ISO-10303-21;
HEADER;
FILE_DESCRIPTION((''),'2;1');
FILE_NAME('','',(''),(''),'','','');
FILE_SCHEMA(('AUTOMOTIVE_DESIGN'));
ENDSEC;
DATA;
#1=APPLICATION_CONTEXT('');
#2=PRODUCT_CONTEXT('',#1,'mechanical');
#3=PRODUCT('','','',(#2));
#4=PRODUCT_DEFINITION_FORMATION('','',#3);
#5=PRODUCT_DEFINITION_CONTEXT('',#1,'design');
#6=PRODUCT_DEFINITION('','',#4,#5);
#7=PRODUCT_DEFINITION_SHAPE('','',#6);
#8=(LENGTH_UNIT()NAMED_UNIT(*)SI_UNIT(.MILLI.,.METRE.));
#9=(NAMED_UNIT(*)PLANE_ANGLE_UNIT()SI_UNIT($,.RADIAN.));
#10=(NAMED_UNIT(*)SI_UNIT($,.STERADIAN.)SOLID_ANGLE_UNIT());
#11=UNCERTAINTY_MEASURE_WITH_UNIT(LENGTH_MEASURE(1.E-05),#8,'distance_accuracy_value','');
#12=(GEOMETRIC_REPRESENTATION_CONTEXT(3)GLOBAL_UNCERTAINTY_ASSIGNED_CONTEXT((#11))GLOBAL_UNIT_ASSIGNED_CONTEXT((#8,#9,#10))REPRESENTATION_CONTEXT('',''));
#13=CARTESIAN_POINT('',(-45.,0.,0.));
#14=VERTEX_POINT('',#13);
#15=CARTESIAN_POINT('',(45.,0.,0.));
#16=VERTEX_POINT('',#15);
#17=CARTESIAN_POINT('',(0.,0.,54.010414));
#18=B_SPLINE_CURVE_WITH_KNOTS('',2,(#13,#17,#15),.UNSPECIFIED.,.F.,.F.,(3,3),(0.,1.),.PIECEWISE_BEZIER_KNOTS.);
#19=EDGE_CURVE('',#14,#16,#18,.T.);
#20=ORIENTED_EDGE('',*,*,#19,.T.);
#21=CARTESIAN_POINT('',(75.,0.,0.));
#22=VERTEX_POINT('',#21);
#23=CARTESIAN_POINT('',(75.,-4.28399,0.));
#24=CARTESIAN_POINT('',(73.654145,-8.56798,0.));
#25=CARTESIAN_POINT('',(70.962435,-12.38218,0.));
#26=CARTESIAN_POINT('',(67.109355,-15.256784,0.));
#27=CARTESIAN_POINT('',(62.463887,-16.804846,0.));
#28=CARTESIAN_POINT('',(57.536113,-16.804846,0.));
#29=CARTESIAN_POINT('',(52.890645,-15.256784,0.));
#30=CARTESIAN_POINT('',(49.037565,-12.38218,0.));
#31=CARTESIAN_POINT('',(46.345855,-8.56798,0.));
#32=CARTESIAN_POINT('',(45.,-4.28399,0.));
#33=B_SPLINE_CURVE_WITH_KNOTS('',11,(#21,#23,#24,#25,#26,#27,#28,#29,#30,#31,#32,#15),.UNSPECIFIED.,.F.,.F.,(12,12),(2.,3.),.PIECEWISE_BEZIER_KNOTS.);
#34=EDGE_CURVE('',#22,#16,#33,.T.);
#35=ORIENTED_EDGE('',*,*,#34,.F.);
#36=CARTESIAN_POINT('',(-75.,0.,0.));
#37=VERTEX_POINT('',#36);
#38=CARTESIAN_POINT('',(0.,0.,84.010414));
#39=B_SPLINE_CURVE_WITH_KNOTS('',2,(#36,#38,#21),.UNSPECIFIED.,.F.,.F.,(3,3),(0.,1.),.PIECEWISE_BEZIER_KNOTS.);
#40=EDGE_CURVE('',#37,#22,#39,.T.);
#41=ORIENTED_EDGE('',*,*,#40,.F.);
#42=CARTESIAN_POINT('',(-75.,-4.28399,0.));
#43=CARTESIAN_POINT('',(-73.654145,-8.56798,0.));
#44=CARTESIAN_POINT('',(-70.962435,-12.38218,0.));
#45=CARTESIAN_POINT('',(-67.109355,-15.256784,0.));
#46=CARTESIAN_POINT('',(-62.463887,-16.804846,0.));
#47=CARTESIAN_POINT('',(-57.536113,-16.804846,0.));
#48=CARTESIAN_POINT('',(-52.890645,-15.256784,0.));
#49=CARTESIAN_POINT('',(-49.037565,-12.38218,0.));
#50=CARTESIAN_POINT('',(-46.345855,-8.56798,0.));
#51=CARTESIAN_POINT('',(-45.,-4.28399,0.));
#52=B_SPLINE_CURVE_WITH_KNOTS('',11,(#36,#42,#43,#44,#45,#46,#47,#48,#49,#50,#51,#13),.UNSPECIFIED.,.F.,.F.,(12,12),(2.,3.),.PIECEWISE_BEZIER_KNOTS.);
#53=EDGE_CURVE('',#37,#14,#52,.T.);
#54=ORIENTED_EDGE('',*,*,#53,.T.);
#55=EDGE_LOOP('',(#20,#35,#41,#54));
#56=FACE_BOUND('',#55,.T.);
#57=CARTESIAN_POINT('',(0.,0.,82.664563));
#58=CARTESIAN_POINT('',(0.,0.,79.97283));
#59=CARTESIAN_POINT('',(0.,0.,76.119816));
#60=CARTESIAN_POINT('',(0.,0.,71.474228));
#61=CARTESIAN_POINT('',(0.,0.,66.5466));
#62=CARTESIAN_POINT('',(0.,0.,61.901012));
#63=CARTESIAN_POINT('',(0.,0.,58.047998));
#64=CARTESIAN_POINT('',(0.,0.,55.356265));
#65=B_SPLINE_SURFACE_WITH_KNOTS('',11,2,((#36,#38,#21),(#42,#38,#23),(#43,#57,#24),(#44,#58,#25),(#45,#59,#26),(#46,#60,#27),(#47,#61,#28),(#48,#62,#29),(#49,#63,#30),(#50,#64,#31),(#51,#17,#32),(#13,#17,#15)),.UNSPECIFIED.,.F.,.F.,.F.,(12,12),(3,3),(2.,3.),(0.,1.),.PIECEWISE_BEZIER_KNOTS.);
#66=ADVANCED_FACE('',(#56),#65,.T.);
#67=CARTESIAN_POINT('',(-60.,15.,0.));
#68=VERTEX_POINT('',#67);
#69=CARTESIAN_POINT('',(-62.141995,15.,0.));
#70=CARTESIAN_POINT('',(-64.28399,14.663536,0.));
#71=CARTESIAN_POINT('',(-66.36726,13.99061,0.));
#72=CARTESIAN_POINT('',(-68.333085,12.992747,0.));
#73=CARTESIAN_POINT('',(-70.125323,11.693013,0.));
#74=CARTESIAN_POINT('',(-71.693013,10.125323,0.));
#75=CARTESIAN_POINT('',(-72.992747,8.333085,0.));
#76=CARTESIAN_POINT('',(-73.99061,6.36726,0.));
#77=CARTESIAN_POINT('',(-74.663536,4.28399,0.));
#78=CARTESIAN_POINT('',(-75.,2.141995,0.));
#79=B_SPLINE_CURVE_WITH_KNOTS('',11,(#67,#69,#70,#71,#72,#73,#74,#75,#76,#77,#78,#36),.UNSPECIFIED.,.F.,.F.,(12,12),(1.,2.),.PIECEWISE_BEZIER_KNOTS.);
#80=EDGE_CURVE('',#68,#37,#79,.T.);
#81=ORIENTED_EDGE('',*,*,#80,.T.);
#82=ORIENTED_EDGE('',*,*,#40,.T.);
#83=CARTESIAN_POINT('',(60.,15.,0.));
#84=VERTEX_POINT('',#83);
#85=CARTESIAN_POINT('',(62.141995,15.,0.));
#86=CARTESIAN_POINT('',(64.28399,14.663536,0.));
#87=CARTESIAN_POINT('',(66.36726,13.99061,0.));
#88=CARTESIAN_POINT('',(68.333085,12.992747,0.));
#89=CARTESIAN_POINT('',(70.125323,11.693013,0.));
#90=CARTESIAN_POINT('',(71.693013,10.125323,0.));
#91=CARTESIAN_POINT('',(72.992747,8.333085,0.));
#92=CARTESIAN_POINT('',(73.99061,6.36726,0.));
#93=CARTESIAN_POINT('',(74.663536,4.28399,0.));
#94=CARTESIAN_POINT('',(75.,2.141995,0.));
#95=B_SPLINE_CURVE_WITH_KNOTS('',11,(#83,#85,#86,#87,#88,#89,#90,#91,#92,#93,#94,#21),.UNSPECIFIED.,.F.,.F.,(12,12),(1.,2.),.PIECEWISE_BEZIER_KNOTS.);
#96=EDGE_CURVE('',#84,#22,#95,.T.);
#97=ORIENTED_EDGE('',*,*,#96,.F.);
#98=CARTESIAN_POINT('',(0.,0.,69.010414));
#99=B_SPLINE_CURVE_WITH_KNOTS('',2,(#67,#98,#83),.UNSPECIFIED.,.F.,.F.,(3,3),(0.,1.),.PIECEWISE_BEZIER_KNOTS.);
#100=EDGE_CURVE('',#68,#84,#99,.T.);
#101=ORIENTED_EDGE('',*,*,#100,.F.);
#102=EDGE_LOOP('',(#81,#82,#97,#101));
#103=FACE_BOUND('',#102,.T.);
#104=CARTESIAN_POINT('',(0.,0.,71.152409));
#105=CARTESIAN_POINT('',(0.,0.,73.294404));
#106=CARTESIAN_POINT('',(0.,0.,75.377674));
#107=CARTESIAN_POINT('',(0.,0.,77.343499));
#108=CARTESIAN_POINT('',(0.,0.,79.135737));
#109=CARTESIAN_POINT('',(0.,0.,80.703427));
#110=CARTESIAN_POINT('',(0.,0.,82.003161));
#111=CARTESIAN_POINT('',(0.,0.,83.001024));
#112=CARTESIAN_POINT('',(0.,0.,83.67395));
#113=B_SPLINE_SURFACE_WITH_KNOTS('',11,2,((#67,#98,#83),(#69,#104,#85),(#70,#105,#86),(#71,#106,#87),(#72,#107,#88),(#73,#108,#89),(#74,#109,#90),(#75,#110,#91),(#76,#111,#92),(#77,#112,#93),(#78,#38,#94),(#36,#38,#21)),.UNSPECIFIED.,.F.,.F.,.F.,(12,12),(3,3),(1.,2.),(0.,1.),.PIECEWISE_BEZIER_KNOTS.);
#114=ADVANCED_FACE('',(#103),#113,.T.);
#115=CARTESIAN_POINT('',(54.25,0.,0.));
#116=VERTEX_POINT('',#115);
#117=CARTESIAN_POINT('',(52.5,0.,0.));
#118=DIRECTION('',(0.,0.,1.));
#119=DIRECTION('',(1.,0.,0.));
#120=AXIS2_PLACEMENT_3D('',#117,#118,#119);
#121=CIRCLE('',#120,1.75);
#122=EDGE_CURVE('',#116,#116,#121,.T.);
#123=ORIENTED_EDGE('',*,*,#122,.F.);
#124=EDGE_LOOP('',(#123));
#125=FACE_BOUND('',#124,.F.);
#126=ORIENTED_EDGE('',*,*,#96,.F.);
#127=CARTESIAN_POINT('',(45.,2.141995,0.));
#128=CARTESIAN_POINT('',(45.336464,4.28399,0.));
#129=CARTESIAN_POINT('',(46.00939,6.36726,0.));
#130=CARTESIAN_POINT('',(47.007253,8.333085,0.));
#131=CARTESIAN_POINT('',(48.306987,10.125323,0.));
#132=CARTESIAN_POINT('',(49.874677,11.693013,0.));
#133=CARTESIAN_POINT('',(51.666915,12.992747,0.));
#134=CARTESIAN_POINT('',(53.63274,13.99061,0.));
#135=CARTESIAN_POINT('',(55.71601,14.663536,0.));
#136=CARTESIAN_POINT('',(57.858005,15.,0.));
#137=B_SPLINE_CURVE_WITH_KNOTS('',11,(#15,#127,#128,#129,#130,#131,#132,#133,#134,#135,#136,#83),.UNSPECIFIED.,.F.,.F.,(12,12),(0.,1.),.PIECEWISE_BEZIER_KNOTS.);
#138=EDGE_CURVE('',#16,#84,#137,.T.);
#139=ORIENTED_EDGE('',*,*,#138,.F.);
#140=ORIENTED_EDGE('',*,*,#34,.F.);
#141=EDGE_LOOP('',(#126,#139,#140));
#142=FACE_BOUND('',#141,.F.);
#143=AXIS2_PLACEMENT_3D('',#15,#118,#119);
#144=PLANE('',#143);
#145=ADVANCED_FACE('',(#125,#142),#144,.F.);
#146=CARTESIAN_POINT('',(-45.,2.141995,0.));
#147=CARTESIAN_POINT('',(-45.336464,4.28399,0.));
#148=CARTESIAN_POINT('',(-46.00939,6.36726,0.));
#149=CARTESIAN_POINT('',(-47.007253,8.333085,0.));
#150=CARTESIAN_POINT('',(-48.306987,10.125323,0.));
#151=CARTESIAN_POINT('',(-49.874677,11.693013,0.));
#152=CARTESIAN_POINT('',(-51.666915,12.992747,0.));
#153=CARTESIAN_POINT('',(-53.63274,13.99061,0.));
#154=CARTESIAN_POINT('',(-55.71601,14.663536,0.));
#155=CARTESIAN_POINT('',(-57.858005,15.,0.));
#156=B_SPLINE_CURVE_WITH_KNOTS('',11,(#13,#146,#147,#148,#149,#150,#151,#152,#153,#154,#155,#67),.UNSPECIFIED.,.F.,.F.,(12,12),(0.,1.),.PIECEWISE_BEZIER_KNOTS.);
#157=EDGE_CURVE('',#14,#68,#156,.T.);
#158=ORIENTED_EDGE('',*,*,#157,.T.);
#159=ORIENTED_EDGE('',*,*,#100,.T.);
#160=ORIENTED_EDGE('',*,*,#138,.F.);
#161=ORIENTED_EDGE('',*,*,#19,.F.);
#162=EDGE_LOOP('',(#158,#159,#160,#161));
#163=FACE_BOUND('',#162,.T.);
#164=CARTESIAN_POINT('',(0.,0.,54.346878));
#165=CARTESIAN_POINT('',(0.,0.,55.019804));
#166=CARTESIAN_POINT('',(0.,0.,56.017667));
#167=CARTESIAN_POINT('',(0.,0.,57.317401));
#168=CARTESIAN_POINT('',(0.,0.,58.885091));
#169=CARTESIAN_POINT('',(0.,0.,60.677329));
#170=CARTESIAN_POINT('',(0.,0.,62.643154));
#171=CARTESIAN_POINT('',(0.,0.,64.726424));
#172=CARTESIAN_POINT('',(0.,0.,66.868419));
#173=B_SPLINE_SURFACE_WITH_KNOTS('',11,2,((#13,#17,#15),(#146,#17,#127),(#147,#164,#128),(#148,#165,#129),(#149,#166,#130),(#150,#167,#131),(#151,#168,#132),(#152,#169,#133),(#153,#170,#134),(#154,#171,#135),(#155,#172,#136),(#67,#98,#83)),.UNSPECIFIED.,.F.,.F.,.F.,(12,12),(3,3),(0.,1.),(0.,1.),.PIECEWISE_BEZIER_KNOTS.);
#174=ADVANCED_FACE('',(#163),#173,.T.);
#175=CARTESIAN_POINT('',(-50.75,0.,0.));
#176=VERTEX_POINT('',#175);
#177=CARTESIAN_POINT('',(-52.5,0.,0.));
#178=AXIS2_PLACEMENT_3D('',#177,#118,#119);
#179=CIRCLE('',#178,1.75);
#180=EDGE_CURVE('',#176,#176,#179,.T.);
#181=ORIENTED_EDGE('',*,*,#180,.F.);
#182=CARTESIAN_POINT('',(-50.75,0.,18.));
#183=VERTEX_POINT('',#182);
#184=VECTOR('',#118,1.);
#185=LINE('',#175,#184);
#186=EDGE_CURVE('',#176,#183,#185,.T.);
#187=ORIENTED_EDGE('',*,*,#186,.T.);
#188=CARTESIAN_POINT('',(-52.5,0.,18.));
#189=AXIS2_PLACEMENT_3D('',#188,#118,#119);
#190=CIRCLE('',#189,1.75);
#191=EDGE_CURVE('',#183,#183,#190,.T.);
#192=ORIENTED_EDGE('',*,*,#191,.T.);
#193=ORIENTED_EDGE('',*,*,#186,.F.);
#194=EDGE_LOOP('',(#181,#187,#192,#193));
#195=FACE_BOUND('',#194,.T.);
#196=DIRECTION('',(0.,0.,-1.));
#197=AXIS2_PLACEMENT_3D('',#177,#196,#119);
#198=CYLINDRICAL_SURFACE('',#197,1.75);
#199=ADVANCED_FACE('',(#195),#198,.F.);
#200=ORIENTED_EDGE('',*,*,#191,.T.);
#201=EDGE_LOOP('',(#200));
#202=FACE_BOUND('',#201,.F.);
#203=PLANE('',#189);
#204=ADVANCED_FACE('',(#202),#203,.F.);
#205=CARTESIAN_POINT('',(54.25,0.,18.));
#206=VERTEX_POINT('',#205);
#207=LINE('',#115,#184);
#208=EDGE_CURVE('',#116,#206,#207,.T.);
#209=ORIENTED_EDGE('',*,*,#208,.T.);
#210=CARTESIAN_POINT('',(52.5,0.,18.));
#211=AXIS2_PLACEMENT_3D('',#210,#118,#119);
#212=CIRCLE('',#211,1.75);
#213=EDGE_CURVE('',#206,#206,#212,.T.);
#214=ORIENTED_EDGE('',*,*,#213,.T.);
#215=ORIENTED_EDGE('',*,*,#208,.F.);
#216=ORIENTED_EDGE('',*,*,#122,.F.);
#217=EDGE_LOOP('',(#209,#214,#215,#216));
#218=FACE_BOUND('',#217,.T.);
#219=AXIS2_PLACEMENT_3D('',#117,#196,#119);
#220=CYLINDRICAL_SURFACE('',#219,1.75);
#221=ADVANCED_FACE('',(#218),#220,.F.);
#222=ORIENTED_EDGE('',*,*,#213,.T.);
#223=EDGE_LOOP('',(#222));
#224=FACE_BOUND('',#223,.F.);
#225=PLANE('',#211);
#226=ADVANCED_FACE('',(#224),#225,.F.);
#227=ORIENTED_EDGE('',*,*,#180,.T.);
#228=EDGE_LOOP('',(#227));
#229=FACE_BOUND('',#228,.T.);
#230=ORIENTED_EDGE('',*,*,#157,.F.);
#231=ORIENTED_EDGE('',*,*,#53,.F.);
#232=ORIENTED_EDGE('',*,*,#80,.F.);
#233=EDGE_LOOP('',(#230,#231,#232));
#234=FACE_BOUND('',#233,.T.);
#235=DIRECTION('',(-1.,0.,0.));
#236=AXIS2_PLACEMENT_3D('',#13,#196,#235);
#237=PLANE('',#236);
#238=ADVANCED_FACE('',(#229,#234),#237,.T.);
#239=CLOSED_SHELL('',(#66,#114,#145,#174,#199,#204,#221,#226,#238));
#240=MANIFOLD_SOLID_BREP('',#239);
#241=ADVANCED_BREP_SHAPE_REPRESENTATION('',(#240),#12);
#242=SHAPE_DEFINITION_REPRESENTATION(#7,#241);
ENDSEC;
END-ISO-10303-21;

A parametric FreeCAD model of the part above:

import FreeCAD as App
import Part
import Sketcher
from FreeCAD import Vector

doc = App.newDocument("Part")
body = doc.addObject("PartDesign::Body", "Body")

sketch1 = body.newObject("Sketcher::SketchObject", "Sketch")
sketch1.AttachmentSupport = (doc.getObject("XY_Plane"), [""])
sketch1.MapMode = "FlatFace"
sketch1.addGeometry(Part.Circle(Vector(-60, 0, 0), Vector(0, 0, 1), 15), False)
sketch1.addConstraint(Sketcher.Constraint("PointOnObject", 0, 3, -1))
sketch1.addConstraint(Sketcher.Constraint("Diameter", 0, 30.0))
sketch1.addConstraint(Sketcher.Constraint("DistanceX", 0, 3, -1, 1, 60.0))

sketch2 = body.newObject("Sketcher::SketchObject", "Sketch001")
sketch2.AttachmentSupport = (doc.getObject("YZ_Plane"), [""])
sketch2.MapMode = "FlatFace"
sketch2.addGeometry(Part.Circle(Vector(0, 35, 0), Vector(0, 0, 1), 8), False)
sketch2.addConstraint(Sketcher.Constraint("PointOnObject", 0, 3, -2))
sketch2.addConstraint(Sketcher.Constraint("Diameter", 0, 15.0))
sketch2.addConstraint(Sketcher.Constraint("DistanceY", -1, 1, 0, 3, 34.505207))

sketch3 = body.newObject("Sketcher::SketchObject", "Sketch002")
sketch3.AttachmentSupport = (doc.getObject("XY_Plane"), [""])
sketch3.MapMode = "FlatFace"
sketch3.addGeometry(Part.Circle(Vector(60, 0, 0), Vector(0, 0, 1), 15), False)
sketch3.addConstraint(Sketcher.Constraint("PointOnObject", 0, 3, -1))
sketch3.addConstraint(Sketcher.Constraint("Diameter", 0, 30.0))
sketch3.addConstraint(Sketcher.Constraint("DistanceX", -1, 1, 0, 3, 60.0))

additiveloft = body.newObject("PartDesign::AdditiveLoft", "AdditiveLoft")
additiveloft.Profile = sketch1
additiveloft.Sections = [sketch2, sketch3]

sketch4 = body.newObject("Sketcher::SketchObject", "Sketch003")
sketch4.AttachmentSupport = (doc.getObject("XY_Plane"), [""])
sketch4.MapMode = "FlatFace"
sketch4.addGeometry(Part.Circle(Vector(-52.5, 0, 0), Vector(0, 0, 1), 1.8), False)
sketch4.addGeometry(Part.Circle(Vector(52.5, 0, 0), Vector(0, 0, 1), 1.8), False)
sketch4.addConstraint(Sketcher.Constraint("Equal", 0, 1))
sketch4.addConstraint(Sketcher.Constraint("Symmetric", 0, 3, 1, 3, -1, 1))
sketch4.addConstraint(Sketcher.Constraint("PointOnObject", 0, 3, -1))
sketch4.addConstraint(Sketcher.Constraint("Diameter", 0, 3.5))
sketch4.addConstraint(Sketcher.Constraint("DistanceX", 0, 3, 1, 3, 105.0))
pocket1 = body.newObject("PartDesign::Pocket", "Pocket")
pocket1.Profile = sketch4
pocket1.Length = 18
pocket1.Reversed = True

doc.recompute()
